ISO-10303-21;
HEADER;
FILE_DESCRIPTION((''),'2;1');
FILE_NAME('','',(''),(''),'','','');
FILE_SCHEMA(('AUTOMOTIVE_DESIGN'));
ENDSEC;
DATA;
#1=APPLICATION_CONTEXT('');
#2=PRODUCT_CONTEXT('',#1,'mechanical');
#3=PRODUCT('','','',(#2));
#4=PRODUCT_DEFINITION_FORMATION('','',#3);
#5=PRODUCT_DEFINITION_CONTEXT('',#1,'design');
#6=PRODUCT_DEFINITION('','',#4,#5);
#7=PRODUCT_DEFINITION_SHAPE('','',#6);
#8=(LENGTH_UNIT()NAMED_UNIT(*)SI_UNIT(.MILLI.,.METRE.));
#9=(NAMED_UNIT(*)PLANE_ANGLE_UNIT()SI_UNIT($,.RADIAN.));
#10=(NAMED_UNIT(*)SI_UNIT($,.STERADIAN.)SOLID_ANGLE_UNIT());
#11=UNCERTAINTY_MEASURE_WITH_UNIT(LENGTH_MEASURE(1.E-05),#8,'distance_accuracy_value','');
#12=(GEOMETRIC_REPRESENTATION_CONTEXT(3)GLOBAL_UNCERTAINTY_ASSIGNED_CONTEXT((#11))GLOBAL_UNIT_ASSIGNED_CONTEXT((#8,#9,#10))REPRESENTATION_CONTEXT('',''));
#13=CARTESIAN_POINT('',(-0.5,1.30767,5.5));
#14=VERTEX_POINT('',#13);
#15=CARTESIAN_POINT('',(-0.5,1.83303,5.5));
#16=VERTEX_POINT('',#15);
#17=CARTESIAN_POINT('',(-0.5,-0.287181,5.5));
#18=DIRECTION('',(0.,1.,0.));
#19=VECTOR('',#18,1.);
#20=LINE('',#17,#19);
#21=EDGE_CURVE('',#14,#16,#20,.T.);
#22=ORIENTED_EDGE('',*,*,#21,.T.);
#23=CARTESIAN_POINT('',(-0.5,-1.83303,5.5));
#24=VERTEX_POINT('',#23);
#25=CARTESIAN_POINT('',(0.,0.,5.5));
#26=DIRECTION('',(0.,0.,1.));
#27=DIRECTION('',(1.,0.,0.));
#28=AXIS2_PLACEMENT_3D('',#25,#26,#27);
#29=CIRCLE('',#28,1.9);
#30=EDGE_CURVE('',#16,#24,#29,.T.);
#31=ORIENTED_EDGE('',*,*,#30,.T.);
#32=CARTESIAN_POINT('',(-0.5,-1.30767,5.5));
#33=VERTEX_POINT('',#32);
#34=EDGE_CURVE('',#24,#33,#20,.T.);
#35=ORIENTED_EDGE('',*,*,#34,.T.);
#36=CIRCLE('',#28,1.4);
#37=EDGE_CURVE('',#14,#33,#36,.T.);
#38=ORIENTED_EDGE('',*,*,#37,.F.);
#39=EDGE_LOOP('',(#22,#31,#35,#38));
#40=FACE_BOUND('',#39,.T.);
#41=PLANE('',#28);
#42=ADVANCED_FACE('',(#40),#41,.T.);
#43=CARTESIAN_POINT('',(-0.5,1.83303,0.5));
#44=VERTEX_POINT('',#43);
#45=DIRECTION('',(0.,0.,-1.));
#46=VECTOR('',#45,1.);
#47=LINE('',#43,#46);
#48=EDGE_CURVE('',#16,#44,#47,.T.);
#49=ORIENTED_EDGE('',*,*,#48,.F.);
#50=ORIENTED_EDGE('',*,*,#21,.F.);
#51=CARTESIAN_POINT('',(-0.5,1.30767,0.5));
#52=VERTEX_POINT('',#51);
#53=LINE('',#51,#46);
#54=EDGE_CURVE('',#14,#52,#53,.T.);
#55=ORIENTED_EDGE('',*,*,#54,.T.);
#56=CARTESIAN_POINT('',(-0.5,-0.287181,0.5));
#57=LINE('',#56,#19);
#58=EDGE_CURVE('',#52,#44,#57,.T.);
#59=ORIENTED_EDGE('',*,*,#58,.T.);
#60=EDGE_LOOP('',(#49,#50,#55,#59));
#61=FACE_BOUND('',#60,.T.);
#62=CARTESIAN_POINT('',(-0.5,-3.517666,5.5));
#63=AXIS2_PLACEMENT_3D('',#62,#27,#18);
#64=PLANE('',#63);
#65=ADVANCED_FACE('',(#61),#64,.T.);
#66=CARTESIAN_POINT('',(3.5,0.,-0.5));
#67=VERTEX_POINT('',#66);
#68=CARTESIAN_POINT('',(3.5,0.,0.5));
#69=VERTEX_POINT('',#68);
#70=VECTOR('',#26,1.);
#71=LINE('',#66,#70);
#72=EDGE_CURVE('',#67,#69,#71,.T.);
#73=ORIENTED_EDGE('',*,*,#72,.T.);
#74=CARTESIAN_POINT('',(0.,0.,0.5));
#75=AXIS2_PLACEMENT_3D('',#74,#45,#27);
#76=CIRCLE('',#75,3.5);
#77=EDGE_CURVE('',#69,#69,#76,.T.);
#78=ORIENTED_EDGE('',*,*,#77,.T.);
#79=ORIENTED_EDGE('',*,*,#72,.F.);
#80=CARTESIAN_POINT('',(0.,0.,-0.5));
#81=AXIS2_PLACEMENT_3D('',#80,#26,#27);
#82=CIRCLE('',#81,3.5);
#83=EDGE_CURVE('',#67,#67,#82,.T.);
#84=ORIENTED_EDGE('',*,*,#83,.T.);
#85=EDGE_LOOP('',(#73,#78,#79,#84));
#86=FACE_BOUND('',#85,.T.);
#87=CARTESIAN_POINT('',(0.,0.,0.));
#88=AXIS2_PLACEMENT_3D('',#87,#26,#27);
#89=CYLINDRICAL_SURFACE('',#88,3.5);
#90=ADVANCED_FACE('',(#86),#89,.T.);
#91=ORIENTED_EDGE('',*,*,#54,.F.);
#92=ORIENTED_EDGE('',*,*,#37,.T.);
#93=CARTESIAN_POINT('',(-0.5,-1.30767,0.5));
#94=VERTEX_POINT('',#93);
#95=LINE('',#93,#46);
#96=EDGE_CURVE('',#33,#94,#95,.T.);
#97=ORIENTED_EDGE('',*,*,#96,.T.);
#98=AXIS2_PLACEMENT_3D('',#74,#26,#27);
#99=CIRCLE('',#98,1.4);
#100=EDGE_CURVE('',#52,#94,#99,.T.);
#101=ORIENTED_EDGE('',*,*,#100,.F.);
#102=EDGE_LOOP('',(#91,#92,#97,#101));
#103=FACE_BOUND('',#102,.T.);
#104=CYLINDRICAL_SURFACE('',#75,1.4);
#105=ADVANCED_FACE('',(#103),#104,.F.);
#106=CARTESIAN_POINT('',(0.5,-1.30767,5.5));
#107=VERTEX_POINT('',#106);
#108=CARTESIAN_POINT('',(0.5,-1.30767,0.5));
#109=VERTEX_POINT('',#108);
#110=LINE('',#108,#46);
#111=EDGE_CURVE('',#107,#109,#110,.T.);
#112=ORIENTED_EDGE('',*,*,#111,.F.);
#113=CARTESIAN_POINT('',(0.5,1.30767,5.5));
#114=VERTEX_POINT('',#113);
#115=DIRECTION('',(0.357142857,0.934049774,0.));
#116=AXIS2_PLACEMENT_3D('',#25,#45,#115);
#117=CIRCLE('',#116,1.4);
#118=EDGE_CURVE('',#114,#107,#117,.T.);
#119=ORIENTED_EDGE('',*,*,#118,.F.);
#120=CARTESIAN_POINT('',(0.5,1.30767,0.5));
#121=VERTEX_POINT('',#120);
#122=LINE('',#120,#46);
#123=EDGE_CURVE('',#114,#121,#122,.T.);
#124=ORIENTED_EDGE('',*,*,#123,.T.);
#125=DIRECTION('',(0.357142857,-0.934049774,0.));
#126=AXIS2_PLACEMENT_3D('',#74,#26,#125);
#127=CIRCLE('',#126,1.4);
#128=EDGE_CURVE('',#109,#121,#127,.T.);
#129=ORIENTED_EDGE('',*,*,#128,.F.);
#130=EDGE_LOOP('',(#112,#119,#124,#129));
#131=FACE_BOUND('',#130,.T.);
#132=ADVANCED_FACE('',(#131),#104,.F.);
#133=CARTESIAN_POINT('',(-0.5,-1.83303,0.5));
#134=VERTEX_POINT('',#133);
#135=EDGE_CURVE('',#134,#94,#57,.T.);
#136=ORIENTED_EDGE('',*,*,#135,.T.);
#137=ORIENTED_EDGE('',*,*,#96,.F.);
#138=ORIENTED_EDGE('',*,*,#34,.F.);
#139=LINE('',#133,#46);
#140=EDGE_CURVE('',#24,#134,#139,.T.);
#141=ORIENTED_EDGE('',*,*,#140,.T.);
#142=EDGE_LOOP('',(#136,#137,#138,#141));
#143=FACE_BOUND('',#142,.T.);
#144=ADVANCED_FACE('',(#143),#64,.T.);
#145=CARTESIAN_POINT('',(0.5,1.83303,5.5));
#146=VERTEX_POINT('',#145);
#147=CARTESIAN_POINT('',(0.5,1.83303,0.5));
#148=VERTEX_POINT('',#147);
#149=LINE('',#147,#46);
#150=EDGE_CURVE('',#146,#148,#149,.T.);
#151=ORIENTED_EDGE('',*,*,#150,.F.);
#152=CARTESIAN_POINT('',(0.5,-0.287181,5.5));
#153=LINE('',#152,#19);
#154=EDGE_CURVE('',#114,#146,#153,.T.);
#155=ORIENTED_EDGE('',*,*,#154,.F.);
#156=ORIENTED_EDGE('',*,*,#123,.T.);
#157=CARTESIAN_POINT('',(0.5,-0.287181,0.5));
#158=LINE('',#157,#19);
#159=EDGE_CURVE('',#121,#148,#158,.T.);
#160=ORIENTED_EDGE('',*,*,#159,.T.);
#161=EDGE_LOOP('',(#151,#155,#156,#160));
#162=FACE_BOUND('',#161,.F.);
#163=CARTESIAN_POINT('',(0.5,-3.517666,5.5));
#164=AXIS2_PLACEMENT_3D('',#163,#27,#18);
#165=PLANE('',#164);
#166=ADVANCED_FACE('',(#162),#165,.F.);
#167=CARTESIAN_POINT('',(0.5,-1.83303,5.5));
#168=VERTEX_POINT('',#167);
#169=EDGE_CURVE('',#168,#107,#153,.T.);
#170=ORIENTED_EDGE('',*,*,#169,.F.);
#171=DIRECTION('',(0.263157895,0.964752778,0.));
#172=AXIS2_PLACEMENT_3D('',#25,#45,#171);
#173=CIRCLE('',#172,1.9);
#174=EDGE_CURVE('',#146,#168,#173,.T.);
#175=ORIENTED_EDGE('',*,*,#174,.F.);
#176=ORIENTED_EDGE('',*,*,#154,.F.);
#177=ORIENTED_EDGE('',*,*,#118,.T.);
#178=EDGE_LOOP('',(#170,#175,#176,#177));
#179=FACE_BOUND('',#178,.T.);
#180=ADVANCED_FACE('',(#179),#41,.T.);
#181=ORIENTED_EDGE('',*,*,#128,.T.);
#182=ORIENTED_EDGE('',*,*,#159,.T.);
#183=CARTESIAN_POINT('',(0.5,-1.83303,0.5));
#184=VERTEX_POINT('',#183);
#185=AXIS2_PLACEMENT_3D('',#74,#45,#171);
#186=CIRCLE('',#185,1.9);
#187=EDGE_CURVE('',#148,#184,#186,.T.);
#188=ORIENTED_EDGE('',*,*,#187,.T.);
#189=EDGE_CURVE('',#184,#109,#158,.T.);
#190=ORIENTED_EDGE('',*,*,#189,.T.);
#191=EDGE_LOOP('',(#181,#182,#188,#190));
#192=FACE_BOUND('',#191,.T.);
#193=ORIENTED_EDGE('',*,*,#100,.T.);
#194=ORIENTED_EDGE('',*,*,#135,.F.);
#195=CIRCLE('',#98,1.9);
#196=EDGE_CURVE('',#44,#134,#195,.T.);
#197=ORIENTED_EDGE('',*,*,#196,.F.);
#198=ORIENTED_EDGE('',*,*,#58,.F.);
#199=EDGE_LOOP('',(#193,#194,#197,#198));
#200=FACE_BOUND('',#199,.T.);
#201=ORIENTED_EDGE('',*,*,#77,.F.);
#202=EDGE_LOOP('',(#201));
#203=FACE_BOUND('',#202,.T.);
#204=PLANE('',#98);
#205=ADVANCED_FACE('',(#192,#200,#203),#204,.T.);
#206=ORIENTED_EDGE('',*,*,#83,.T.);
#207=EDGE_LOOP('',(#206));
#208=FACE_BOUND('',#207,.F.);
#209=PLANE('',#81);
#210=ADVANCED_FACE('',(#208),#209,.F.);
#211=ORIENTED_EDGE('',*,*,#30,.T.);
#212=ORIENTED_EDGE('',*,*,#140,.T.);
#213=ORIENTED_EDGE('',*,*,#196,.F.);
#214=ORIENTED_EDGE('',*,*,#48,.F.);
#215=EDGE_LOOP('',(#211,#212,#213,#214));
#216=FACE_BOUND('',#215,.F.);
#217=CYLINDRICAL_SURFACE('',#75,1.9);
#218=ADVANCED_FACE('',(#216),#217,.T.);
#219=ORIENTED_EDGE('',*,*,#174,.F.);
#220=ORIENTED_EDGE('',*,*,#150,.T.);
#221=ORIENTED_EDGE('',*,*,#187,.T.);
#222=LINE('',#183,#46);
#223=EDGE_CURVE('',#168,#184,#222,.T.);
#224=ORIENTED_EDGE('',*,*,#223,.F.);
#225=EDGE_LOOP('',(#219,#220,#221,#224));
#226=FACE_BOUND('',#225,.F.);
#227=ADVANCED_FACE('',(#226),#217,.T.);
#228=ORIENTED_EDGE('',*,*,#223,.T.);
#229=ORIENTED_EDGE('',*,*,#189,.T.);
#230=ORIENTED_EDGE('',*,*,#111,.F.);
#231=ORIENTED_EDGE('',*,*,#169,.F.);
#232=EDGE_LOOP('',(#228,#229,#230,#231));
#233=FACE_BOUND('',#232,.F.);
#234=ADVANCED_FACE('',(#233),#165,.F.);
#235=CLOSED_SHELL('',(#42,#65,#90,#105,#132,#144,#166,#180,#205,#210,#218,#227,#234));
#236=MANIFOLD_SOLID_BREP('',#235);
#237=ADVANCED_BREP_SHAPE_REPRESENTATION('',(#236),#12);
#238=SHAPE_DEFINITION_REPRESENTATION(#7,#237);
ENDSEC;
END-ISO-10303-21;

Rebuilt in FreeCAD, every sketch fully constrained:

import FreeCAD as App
import Part
import Sketcher

V = App.Vector
Q = App.Units.Quantity


def add_polygon(sketch, points):
    """Adds a closed chain of lines whose ends are joined by coincident constraints."""
    first, n = sketch.GeometryCount, len(points)
    for a, b in zip(points, points[1:] + points[:1]):
        sketch.addGeometry(Part.LineSegment(App.Vector(*a, 0), App.Vector(*b, 0)), False)
    for i in range(n):
        sketch.addConstraint(Sketcher.Constraint("Coincident", first + i, 2, first + (i + 1) % n, 1))

doc = App.newDocument("Part")
body = doc.addObject("PartDesign::Body", "Body")

sketch1 = body.newObject("Sketcher::SketchObject", "Sketch")
sketch1.AttachmentSupport = (doc.getObject("XY_Plane"), [""])
sketch1.MapMode = "FlatFace"
sketch1.addGeometry(Part.Circle(V(0, 0, 0), V(0, 0, 1), 3.5), False)
sketch1.addConstraint([
    Sketcher.Constraint("Coincident", 0, 3, -1, 1),
    Sketcher.Constraint("Diameter", 0, Q("7 mm")),
])
pad1 = body.newObject("PartDesign::Pad", "Pad")
pad1.Profile = sketch1
pad1.Length = 1
pad1.Midplane = True

sketch2 = body.newObject("Sketcher::SketchObject", "Sketch001")
sketch2.AttachmentSupport = (doc.getObject("XY_Plane"), [""])
sketch2.MapMode = "FlatFace"
sketch2.AttachmentOffset = App.Placement(V(0, 0, 0.5), App.Rotation())
sketch2.addGeometry([
    Part.Circle(V(0, 0, 0), V(0, 0, 1), 1.9),
    Part.Circle(V(0, 0, 0), V(0, 0, 1), 1.4),
], False)
sketch2.addConstraint([
    Sketcher.Constraint("Coincident", 0, 3, -1, 1),
    Sketcher.Constraint("Coincident", 1, 3, -1, 1),
    Sketcher.Constraint("Diameter", 0, Q("3.8 mm")),
    Sketcher.Constraint("Diameter", 1, Q("2.8 mm")),
])
pad2 = body.newObject("PartDesign::Pad", "Pad001")
pad2.Profile = sketch2
pad2.Length = 5

sketch3 = body.newObject("Sketcher::SketchObject", "Sketch002")
sketch3.AttachmentSupport = (doc.getObject("XY_Plane"), [""])
sketch3.MapMode = "FlatFace"
sketch3.AttachmentOffset = App.Placement(V(0, 0, 5.5), App.Rotation())
add_polygon(sketch3, [(-0.5, 2.9), (-0.5, -3.5), (0.5, -3.5), (0.5, 2.9)])
sketch3.addConstraint([
    Sketcher.Constraint("Vertical", 0),
    Sketcher.Constraint("Horizontal", 1),
    Sketcher.Constraint("Vertical", 2),
    Sketcher.Constraint("Horizontal", 3),
    Sketcher.Constraint("DistanceX", 1, 1, 1, 2, Q("1 mm")),
    Sketcher.Constraint("DistanceX", 0, 2, -1, 1, Q("0.5 mm")),
    Sketcher.Constraint("DistanceY", 0, 2, 0, 1, Q("6.460969 mm")),
    Sketcher.Constraint("DistanceY", 0, 2, -1, 1, Q("3.517666 mm")),
])
pocket1 = body.newObject("PartDesign::Pocket", "Pocket")
pocket1.Profile = sketch3
pocket1.Length = 5

doc.recompute()
